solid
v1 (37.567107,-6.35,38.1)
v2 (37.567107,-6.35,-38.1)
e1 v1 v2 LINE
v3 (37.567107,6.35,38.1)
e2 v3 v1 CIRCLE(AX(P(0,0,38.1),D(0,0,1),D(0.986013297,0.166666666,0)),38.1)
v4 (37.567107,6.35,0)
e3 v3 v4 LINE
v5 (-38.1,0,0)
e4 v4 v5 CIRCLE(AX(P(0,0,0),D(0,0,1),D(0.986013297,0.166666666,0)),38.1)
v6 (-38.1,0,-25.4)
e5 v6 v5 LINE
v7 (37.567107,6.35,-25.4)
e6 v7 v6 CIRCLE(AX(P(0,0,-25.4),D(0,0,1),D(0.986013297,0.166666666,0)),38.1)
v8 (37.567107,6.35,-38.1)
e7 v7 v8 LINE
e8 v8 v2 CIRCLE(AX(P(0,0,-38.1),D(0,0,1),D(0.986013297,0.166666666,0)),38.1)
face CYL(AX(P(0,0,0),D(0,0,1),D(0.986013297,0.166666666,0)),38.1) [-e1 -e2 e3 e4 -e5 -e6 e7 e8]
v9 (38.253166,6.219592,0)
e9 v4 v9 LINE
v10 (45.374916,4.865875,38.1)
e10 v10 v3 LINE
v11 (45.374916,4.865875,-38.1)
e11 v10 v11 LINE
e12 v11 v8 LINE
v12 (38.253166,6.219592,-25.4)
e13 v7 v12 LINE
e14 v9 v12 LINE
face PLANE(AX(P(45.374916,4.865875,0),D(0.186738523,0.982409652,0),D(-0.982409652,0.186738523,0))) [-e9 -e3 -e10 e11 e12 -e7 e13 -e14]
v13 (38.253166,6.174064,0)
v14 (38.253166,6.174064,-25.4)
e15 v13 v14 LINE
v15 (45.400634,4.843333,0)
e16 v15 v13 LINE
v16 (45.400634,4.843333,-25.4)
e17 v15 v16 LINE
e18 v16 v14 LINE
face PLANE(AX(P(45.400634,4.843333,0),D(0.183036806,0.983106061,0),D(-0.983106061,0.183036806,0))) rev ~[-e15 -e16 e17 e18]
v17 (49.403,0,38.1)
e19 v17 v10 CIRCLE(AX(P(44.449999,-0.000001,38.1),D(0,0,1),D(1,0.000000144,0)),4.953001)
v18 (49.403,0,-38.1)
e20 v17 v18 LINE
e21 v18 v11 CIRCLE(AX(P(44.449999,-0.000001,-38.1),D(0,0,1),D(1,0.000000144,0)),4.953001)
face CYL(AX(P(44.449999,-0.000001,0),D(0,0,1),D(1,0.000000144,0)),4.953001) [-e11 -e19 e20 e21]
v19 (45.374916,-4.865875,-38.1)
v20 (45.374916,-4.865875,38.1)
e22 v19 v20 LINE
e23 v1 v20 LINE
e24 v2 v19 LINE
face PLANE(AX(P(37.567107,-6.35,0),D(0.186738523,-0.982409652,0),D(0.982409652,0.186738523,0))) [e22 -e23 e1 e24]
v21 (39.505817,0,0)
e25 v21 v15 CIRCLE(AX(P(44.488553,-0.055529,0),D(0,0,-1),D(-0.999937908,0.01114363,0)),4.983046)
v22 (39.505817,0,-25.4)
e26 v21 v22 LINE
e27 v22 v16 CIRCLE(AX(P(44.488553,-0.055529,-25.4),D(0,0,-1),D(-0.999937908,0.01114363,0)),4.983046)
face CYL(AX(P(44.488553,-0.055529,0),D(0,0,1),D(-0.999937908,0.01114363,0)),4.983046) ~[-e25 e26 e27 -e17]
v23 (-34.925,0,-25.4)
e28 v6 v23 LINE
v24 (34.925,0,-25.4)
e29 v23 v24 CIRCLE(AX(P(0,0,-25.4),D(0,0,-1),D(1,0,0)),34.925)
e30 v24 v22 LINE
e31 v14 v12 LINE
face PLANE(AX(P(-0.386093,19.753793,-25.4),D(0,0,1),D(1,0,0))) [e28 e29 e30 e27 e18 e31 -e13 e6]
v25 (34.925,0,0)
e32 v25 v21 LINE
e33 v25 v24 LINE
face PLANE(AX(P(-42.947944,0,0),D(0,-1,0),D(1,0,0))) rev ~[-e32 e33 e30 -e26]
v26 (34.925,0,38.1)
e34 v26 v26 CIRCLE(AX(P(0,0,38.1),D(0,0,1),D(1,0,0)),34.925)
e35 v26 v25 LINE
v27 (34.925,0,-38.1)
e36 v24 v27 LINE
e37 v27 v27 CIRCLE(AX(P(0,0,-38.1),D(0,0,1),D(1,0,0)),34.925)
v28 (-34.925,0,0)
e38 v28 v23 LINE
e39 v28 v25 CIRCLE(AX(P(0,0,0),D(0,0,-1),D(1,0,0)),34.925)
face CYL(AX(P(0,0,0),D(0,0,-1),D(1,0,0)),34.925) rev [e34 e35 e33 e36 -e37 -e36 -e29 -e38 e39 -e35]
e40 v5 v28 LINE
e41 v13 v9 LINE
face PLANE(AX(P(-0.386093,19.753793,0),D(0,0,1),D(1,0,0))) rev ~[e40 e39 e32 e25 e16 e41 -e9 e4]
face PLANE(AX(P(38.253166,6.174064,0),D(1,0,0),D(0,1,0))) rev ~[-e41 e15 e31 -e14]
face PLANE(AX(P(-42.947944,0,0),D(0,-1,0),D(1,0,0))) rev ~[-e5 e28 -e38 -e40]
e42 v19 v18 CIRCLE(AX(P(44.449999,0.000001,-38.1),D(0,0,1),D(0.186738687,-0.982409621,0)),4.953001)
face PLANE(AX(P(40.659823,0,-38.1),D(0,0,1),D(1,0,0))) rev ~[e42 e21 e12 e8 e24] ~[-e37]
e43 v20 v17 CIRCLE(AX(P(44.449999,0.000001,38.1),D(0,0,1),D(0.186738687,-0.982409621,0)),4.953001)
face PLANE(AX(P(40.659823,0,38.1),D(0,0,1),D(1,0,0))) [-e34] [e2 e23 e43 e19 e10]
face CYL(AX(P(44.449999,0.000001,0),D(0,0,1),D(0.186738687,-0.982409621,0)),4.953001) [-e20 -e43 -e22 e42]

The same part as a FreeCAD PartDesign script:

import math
import FreeCAD as App
import Part
import Sketcher
from FreeCAD import Vector
Q = App.Units.Quantity

doc = App.newDocument("Part")
body = doc.addObject("PartDesign::Body", "Body")

sketch1 = body.newObject("Sketcher::SketchObject", "Sketch")
sketch1.AttachmentSupport = (doc.getObject("XY_Plane"), [""])
sketch1.MapMode = "FlatFace"
sketch1.addGeometry([
    Part.ArcOfCircle(Part.Circle(Vector(-0.000018, -0.000001, 0), Vector(0, 0, 1), 38.100018), math.radians(-9.594062), math.radians(0.000001)),
    Part.ArcOfCircle(Part.Circle(Vector(-0.000018, 0.000001, 0), Vector(0, 0, 1), 38.100018), math.radians(-0.000001), math.radians(9.594062)),
    Part.ArcOfCircle(Part.Circle(Vector(0, 0, 0), Vector(0, 0, 1), 38.1), math.radians(9.594068), math.radians(350.405932)),
    Part.Circle(Vector(0, 0, 0), Vector(0, 0, 1), 34.925),
], False)
sketch1.addConstraint([
    Sketcher.Constraint("Tangent", 0, 2, 1, 1),
    Sketcher.Constraint("Tangent", 1, 2, 2, 1),
    Sketcher.Constraint("Coincident", 2, 2, 0, 1),
    Sketcher.Constraint("Coincident", 2, 3, -1, 1),
    Sketcher.Constraint("Coincident", 3, 3, -1, 1),
    Sketcher.Constraint("Equal", 0, 1),
    Sketcher.Constraint("PointOnObject", 0, 2, -1),
    Sketcher.Constraint("Vertical", 1, 2, 2, 2),
    Sketcher.Constraint("Radius", 2, Q("1.5 in")),
    Sketcher.Constraint("Diameter", 3, Q("2.75 in")),
    Sketcher.Constraint("DistanceY", 2, 2, 1, 2, Q("0.5 in")),
])
pad1 = body.newObject("PartDesign::Pad", "Pad")
pad1.Profile = sketch1
pad1.Length = Q("3 in")
pad1.Midplane = True

sketch2 = body.newObject("Sketcher::SketchObject", "Sketch001")
sketch2.AttachmentSupport = (doc.getObject("XY_Plane"), [""])
sketch2.MapMode = "FlatFace"
sketch2.addGeometry([
    Part.ArcOfCircle(Part.Circle(Vector(-0.000018, 0.000001, 0), Vector(0, 0, 1), 38.100018), math.radians(-0.000001), math.radians(9.594062)),
    Part.ArcOfCircle(Part.Circle(Vector(-0.000018, -0.000001, 0), Vector(0, 0, 1), 38.100018), math.radians(-9.594062), math.radians(0.000001)),
    Part.LineSegment(Vector(37.567107, -6.35, 0), Vector(45.374916, -4.865875, 0)),
    Part.ArcOfCircle(Part.Circle(Vector(44.449999, 0.000001, 0), Vector(0, 0, 1), 4.953001), math.radians(-79.237481), math.radians(-0.000008)),
    Part.ArcOfCircle(Part.Circle(Vector(44.449999, -0.000001, 0), Vector(0, 0, 1), 4.953001), math.radians(0.000008), math.radians(79.237481)),
    Part.LineSegment(Vector(45.374916, 4.865875, 0), Vector(37.567107, 6.35, 0)),
], False)
sketch2.addConstraint([
    Sketcher.Constraint("Tangent", 0, 1, 1, 2),
    Sketcher.Constraint("Coincident", 1, 1, 2, 1),
    Sketcher.Constraint("Tangent", 2, 2, 3, 1),
    Sketcher.Constraint("Tangent", 3, 2, 4, 1),
    Sketcher.Constraint("Tangent", 4, 2, 5, 1),
    Sketcher.Constraint("Coincident", 5, 2, 0, 2),
    Sketcher.Constraint("Equal", 0, 1),
    Sketcher.Constraint("Equal", 3, 4),
    Sketcher.Constraint("Symmetric", 2, 2, 4, 2, -1),
    Sketcher.Constraint("PointOnObject", 0, 3, -1),
    Sketcher.Constraint("PointOnObject", 0, 1, -1),
    Sketcher.Constraint("PointOnObject", 3, 2, -1),
    Sketcher.Constraint("Radius", 3, Q("0.195 in")),
    Sketcher.Constraint("DistanceX", -1, 1, 0, 1, Q("1.5 in")),
    Sketcher.Constraint("DistanceY", 1, 1, 5, 2, Q("0.5 in")),
    Sketcher.Constraint("DistanceX", -1, 1, 3, 3, Q("1.75 in")),
    Sketcher.Constraint("Radius", 0, Q("38.100018 mm")),
])
pad2 = body.newObject("PartDesign::Pad", "Pad001")
pad2.Profile = sketch2
pad2.Length = Q("3 in")
pad2.Midplane = True

sketch3 = body.newObject("Sketcher::SketchObject", "Sketch002")
sketch3.AttachmentSupport = (doc.getObject("XY_Plane"), [""])
sketch3.MapMode = "FlatFace"
sketch3.addGeometry([
    Part.LineSegment(Vector(-42.947944, 0, 0), Vector(39.505817, 0, 0)),
    Part.ArcOfCircle(Part.Circle(Vector(44.488553, -0.055529, 0), Vector(0, 0, 1), 4.983046), math.radians(79.453303), math.radians(179.361504)),
    Part.LineSegment(Vector(45.400634, 4.843333, 0), Vector(38.253166, 6.174064, 0)),
    Part.LineSegment(Vector(38.253166, 6.174064, 0), Vector(38.253166, 40.875405, 0)),
    Part.LineSegment(Vector(38.253166, 40.875405, 0), Vector(-42.947944, 40.875405, 0)),
    Part.LineSegment(Vector(-42.947944, 40.875405, 0), Vector(-42.947944, 0, 0)),
], False)
sketch3.addConstraint([
    Sketcher.Constraint("Coincident", 0, 2, 1, 2),
    Sketcher.Constraint("Tangent", 1, 1, 2, 1),
    Sketcher.Constraint("Coincident", 2, 2, 3, 1),
    Sketcher.Constraint("Coincident", 3, 2, 4, 1),
    Sketcher.Constraint("Coincident", 4, 2, 5, 1),
    Sketcher.Constraint("Coincident", 5, 2, 0, 1),
    Sketcher.Constraint("Horizontal", 0),
    Sketcher.Constraint("Vertical", 3),
    Sketcher.Constraint("Horizontal", 4),
    Sketcher.Constraint("Vertical", 5),
    Sketcher.Constraint("PointOnObject", 0, 2, -1),
    Sketcher.Constraint("Radius", 1, Q("4.983046 mm")),
    Sketcher.Constraint("DistanceX", 0, 1, 0, 2, Q("82.453761 mm")),
    Sketcher.Constraint("DistanceX", 4, 2, 4, 1, Q("81.20111 mm")),
    Sketcher.Constraint("DistanceY", 3, 1, 3, 2, Q("34.701341 mm")),
    Sketcher.Constraint("Distance", 2, Q("7.270292 mm")),
    Sketcher.Constraint("DistanceY", 5, 2, 5, 1, Q("40.875405 mm")),
    Sketcher.Constraint("DistanceX", -1, 1, 1, 3, Q("44.488553 mm")),
])
pocket1 = body.newObject("PartDesign::Pocket", "Pocket")
pocket1.Profile = sketch3
pocket1.Length = Q("1 in")

doc.recompute()
